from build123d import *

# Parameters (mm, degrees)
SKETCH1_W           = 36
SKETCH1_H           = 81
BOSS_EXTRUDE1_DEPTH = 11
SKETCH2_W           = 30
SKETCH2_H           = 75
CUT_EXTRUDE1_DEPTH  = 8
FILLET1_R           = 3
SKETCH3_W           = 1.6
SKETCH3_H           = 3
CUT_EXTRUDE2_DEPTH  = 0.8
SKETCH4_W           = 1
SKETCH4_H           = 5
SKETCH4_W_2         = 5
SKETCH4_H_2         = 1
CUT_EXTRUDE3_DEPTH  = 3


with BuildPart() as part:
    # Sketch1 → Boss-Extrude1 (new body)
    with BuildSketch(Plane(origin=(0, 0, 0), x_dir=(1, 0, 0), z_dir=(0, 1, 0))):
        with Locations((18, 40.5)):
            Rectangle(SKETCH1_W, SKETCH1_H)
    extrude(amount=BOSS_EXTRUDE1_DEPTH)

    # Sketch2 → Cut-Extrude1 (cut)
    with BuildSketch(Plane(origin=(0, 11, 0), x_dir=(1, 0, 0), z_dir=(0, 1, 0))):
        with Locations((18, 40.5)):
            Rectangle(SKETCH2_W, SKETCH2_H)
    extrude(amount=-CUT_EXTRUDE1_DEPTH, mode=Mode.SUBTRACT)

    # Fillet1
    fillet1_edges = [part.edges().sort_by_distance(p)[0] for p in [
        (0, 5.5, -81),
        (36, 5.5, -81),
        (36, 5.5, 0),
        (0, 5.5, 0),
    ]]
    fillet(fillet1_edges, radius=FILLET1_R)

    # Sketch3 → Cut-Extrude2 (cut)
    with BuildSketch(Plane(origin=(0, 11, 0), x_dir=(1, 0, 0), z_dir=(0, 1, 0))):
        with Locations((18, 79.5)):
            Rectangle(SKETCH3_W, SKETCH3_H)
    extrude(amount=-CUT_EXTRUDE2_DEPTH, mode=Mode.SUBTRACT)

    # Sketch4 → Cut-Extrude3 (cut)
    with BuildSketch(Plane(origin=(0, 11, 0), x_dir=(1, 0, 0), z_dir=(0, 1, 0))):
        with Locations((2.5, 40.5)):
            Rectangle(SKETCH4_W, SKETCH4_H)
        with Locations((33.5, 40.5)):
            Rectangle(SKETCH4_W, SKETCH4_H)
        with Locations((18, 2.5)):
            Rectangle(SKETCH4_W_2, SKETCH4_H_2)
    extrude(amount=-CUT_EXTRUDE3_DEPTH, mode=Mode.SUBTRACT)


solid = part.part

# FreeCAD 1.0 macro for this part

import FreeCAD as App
import Part
import Sketcher
Q = App.Units.Quantity


def edges_at(feature, points):
    """Names of the edges that pass closest to the given points."""
    edges = feature.Shape.Edges
    near = lambda p: min(range(len(edges)), key=lambda i: edges[i].distToShape(Part.Vertex(*p))[0])
    return sorted({f"Edge{near(p) + 1}" for p in points})

doc = App.newDocument("Part")
body = doc.addObject("PartDesign::Body", "Body")

sketch1 = body.newObject("Sketcher::SketchObject", "Sketch")
sketch1.AttachmentSupport = (doc.getObject("XZ_Plane"), [""])
sketch1.MapMode = "FlatFace"
sketch1.addGeometry([
    Part.LineSegment(App.Vector(0, -81, 0), App.Vector(0, 0, 0)),
    Part.LineSegment(App.Vector(0, 0, 0), App.Vector(36, 0, 0)),
    Part.LineSegment(App.Vector(36, 0, 0), App.Vector(36, -81, 0)),
    Part.LineSegment(App.Vector(36, -81, 0), App.Vector(0, -81, 0)),
], False)
sketch1.addConstraint([
    Sketcher.Constraint("Coincident", 0, 2, 1, 1),
    Sketcher.Constraint("Coincident", 1, 2, 2, 1),
    Sketcher.Constraint("Coincident", 2, 2, 3, 1),
    Sketcher.Constraint("Coincident", 3, 2, 0, 1),
    Sketcher.Constraint("Vertical", 0),
    Sketcher.Constraint("Horizontal", 1),
    Sketcher.Constraint("Vertical", 2),
    Sketcher.Constraint("Horizontal", 3),
    Sketcher.Constraint("Coincident", 0, 2, -1, 1),
    Sketcher.Constraint("DistanceX", 1, 1, 1, 2, Q("36 mm")),
    Sketcher.Constraint("DistanceY", 0, 1, 0, 2, Q("81 mm")),
])
pad1 = body.newObject("PartDesign::Pad", "Pad")
pad1.Profile = sketch1
pad1.Length = 11
pad1.Reversed = True

sketch2 = body.newObject("Sketcher::SketchObject", "Sketch001")
sketch2.AttachmentSupport = (doc.getObject("XZ_Plane"), [""])
sketch2.MapMode = "FlatFace"
sketch2.AttachmentOffset = App.Placement(App.Vector(0, 0, -11), App.Rotation())
sketch2.addGeometry([
    Part.LineSegment(App.Vector(3, -78, 0), App.Vector(3, -3, 0)),
    Part.LineSegment(App.Vector(3, -3, 0), App.Vector(33, -3, 0)),
    Part.LineSegment(App.Vector(33, -3, 0), App.Vector(33, -78, 0)),
    Part.LineSegment(App.Vector(33, -78, 0), App.Vector(3, -78, 0)),
], False)
sketch2.addConstraint([
    Sketcher.Constraint("Coincident", 0, 2, 1, 1),
    Sketcher.Constraint("Coincident", 1, 2, 2, 1),
    Sketcher.Constraint("Coincident", 2, 2, 3, 1),
    Sketcher.Constraint("Coincident", 3, 2, 0, 1),
    Sketcher.Constraint("Vertical", 0),
    Sketcher.Constraint("Horizontal", 1),
    Sketcher.Constraint("Vertical", 2),
    Sketcher.Constraint("Horizontal", 3),
    Sketcher.Constraint("DistanceX", 1, 1, 1, 2, Q("30 mm")),
    Sketcher.Constraint("DistanceY", 0, 1, 0, 2, Q("75 mm")),
    Sketcher.Constraint("DistanceX", -1, 1, 0, 2, Q("3 mm")),
    Sketcher.Constraint("DistanceY", 0, 2, -1, 1, Q("3 mm")),
])
pocket1 = body.newObject("PartDesign::Pocket", "Pocket")
pocket1.Profile = sketch2
pocket1.Length = 8
pocket1.Reversed = True
doc.recompute()

fillet = body.newObject("PartDesign::Fillet", "Fillet")
fillet.Base = (pocket1, edges_at(pocket1, [
    (0, 5.5, -81),
    (36, 5.5, -81),
    (36, 5.5, 0),
    (0, 5.5, 0),
]))
fillet.Radius = 3

sketch3 = body.newObject("Sketcher::SketchObject", "Sketch002")
sketch3.AttachmentSupport = (doc.getObject("XZ_Plane"), [""])
sketch3.MapMode = "FlatFace"
sketch3.AttachmentOffset = App.Placement(App.Vector(0, 0, -11), App.Rotation())
sketch3.addGeometry([
    Part.LineSegment(App.Vector(17.2, -81, 0), App.Vector(17.2, -78, 0)),
    Part.LineSegment(App.Vector(17.2, -78, 0), App.Vector(18.8, -78, 0)),
    Part.LineSegment(App.Vector(18.8, -78, 0), App.Vector(18.8, -81, 0)),
    Part.LineSegment(App.Vector(18.8, -81, 0), App.Vector(17.2, -81, 0)),
], False)
sketch3.addConstraint([
    Sketcher.Constraint("Coincident", 0, 2, 1, 1),
    Sketcher.Constraint("Coincident", 1, 2, 2, 1),
    Sketcher.Constraint("Coincident", 2, 2, 3, 1),
    Sketcher.Constraint("Coincident", 3, 2, 0, 1),
    Sketcher.Constraint("Vertical", 0),
    Sketcher.Constraint("Horizontal", 1),
    Sketcher.Constraint("Vertical", 2),
    Sketcher.Constraint("Horizontal", 3),
    Sketcher.Constraint("DistanceY", 0, 1, 0, 2, Q("3 mm")),
    Sketcher.Constraint("DistanceX", 1, 1, 1, 2, Q("1.6 mm")),
    Sketcher.Constraint("DistanceY", 0, 2, -1, 1, Q("78 mm")),
    Sketcher.Constraint("DistanceX", -1, 1, 0, 2, Q("17.2 mm")),
])
pocket2 = body.newObject("PartDesign::Pocket", "Pocket001")
pocket2.Profile = sketch3
pocket2.Length = 0.8
pocket2.Reversed = True

sketch4 = body.newObject("Sketcher::SketchObject", "Sketch003")
sketch4.AttachmentSupport = (doc.getObject("XZ_Plane"), [""])
sketch4.MapMode = "FlatFace"
sketch4.AttachmentOffset = App.Placement(App.Vector(0, 0, -11), App.Rotation())
sketch4.addGeometry([
    Part.LineSegment(App.Vector(2, -43, 0), App.Vector(2, -38, 0)),
    Part.LineSegment(App.Vector(2, -38, 0), App.Vector(3, -38, 0)),
    Part.LineSegment(App.Vector(3, -38, 0), App.Vector(3, -43, 0)),
    Part.LineSegment(App.Vector(3, -43, 0), App.Vector(2, -43, 0)),
    Part.LineSegment(App.Vector(33, -43, 0), App.Vector(33, -38, 0)),
    Part.LineSegment(App.Vector(33, -38, 0), App.Vector(34, -38, 0)),
    Part.LineSegment(App.Vector(34, -38, 0), App.Vector(34, -43, 0)),
    Part.LineSegment(App.Vector(34, -43, 0), App.Vector(33, -43, 0)),
    Part.LineSegment(App.Vector(15.5, -3, 0), App.Vector(15.5, -2, 0)),
    Part.LineSegment(App.Vector(15.5, -2, 0), App.Vector(20.5, -2, 0)),
    Part.LineSegment(App.Vector(20.5, -2, 0), App.Vector(20.5, -3, 0)),
    Part.LineSegment(App.Vector(20.5, -3, 0), App.Vector(15.5, -3, 0)),
], False)
sketch4.addConstraint([
    Sketcher.Constraint("Coincident", 0, 2, 1, 1),
    Sketcher.Constraint("Coincident", 1, 2, 2, 1),
    Sketcher.Constraint("Coincident", 2, 2, 3, 1),
    Sketcher.Constraint("Coincident", 3, 2, 0, 1),
    Sketcher.Constraint("Coincident", 4, 2, 5, 1),
    Sketcher.Constraint("Coincident", 5, 2, 6, 1),
    Sketcher.Constraint("Coincident", 6, 2, 7, 1),
    Sketcher.Constraint("Coincident", 7, 2, 4, 1),
    Sketcher.Constraint("Coincident", 8, 2, 9, 1),
    Sketcher.Constraint("Coincident", 9, 2, 10, 1),
    Sketcher.Constraint("Coincident", 10, 2, 11, 1),
    Sketcher.Constraint("Coincident", 11, 2, 8, 1),
    Sketcher.Constraint("Vertical", 0),
    Sketcher.Constraint("Horizontal", 1),
    Sketcher.Constraint("Vertical", 2),
    Sketcher.Constraint("Horizontal", 3),
    Sketcher.Constraint("Vertical", 4),
    Sketcher.Constraint("Horizontal", 5),
    Sketcher.Constraint("Vertical", 6),
    Sketcher.Constraint("Horizontal", 7),
    Sketcher.Constraint("Vertical", 8),
    Sketcher.Constraint("Horizontal", 9),
    Sketcher.Constraint("Vertical", 10),
    Sketcher.Constraint("Horizontal", 11),
    Sketcher.Constraint("Horizontal", 1, 2, 4, 2),
    Sketcher.Constraint("Horizontal", 3, 2, 6, 2),
    Sketcher.Constraint("Equal", 3, 5),
    Sketcher.Constraint("Equal", 11, 0),
    Sketcher.Constraint("Equal", 7, 8),
    Sketcher.Constraint("DistanceX", 1, 1, 1, 2, Q("1 mm")),
    Sketcher.Constraint("DistanceX", 9, 1, 9, 2, Q("5 mm")),
    Sketcher.Constraint("DistanceX", -1, 1, 0, 2, Q("2 mm")),
    Sketcher.Constraint("DistanceY", 0, 2, -1, 1, Q("38 mm")),
    Sketcher.Constraint("DistanceX", -1, 1, 4, 2, Q("33 mm")),
    Sketcher.Constraint("DistanceY", 8, 2, -1, 1, Q("2 mm")),
    Sketcher.Constraint("DistanceX", -1, 1, 8, 2, Q("15.5 mm")),
])
pocket3 = body.newObject("PartDesign::Pocket", "Pocket002")
pocket3.Profile = sketch4
pocket3.Length = 3
pocket3.Reversed = True

doc.recompute()
